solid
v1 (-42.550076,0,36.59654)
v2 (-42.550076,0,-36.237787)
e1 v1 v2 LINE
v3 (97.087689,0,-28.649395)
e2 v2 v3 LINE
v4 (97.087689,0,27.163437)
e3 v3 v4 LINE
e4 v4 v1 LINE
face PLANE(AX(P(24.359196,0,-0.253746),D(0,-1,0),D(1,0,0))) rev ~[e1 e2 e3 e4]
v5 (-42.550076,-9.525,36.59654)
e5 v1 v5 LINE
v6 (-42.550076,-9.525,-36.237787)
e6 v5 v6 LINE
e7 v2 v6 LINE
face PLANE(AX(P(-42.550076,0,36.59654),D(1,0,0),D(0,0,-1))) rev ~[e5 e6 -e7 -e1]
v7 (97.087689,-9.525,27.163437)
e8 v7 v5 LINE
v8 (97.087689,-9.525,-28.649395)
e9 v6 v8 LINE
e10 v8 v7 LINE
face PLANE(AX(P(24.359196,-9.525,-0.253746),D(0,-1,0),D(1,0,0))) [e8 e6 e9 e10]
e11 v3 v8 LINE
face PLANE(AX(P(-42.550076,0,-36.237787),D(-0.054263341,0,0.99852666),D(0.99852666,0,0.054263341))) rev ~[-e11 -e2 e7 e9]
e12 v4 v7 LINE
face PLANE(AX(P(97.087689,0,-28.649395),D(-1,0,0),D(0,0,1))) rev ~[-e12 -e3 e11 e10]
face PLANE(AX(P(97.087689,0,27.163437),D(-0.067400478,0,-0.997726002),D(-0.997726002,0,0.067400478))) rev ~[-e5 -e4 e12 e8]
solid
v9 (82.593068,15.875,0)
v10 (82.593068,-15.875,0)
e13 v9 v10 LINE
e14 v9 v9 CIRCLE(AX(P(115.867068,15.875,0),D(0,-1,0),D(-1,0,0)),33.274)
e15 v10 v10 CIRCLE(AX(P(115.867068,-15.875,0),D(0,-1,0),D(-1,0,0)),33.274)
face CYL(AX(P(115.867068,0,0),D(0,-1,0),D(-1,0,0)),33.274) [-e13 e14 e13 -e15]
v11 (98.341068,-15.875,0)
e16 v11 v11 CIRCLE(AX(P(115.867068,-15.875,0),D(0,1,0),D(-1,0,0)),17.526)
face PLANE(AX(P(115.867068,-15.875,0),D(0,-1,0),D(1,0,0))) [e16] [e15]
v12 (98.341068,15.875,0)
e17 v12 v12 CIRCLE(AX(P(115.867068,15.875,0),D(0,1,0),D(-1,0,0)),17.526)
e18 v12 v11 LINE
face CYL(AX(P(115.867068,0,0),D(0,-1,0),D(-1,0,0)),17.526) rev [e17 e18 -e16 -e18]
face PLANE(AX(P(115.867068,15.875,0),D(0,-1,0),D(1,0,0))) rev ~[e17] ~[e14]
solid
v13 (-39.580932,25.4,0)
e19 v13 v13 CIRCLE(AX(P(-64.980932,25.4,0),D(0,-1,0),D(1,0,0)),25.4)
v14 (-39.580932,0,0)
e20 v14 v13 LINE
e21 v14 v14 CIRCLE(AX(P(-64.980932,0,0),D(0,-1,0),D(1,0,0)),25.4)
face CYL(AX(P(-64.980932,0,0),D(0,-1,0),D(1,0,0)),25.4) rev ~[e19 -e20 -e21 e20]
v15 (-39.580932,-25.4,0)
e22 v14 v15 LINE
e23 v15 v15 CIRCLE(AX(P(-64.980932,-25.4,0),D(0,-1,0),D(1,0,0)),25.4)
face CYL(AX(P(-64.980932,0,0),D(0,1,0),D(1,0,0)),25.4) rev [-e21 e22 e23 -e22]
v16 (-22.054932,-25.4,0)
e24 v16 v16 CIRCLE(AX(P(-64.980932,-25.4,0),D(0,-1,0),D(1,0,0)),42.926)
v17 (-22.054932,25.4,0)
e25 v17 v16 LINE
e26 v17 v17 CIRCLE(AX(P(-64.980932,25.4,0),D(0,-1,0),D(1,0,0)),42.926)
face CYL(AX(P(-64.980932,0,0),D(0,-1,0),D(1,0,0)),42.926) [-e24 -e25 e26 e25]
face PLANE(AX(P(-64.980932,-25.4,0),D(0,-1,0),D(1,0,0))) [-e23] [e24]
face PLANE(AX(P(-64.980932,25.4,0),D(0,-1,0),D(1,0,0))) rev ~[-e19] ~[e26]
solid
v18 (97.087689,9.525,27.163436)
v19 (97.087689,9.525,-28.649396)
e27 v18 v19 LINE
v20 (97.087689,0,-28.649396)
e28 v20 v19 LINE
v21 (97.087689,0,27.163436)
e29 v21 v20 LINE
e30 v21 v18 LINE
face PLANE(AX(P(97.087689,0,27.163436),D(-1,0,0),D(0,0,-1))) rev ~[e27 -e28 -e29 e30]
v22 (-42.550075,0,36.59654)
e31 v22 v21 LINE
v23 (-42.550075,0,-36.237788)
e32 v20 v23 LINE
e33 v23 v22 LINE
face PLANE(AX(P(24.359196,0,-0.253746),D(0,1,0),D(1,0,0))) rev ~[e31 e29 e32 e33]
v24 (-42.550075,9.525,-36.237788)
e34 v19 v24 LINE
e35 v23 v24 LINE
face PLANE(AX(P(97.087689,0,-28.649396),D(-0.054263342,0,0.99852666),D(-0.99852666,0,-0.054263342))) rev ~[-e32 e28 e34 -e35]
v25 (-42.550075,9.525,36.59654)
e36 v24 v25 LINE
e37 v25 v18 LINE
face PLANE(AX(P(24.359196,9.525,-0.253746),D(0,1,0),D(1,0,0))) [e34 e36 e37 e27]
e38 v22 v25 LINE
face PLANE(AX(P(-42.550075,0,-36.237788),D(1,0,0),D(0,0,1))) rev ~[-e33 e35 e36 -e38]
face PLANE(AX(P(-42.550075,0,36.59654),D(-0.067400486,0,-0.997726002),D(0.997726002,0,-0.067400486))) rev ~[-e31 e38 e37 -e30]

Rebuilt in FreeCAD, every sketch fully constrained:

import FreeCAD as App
import Part
import Sketcher
from FreeCAD import Vector
Q = App.Units.Quantity

doc = App.newDocument("Part")
params = doc.addObject("Spreadsheet::Sheet", "Params")
for row, (alias, value) in enumerate([
    ("sketch1_diameter", "2.62 in"),
    ("sketch1_diameter2", "1.38 in"),
    ("pad1_length", "0.625 in"),
    ("sketch2_diameter", "2.62 in"),
    ("sketch2_diameter2", "1.38 in"),
    ("pad2_length", "0.625 in"),
    ("sketch3_diameter", "2 in"),
    ("sketch3_diameter2", "3.38 in"),
    ("pad3_length", "1 in"),
    ("sketch4_diameter", "2 in"),
    ("sketch4_diameter2", "3.38 in"),
    ("pad4_length", "1 in"),
    ("pad5_length", "0.375 in"),
    ("pad6_length", "0.375 in"),
], start=1):
    params.set(f"A{row}", alias)
    params.set(f"B{row}", "=" + value)
    params.setAlias(f"B{row}", alias)

body = doc.addObject("PartDesign::Body", "Body")

sketch1 = body.newObject("Sketcher::SketchObject", "Sketch")
sketch1.AttachmentSupport = (doc.getObject("XZ_Plane"), [""])
sketch1.MapMode = "FlatFace"
sketch1.addGeometry(Part.Circle(Vector(116, 0, 0), Vector(0, 0, 1), 33), False)
sketch1.addGeometry(Part.Circle(Vector(116, 0, 0), Vector(0, 0, 1), 18), False)
sketch1.addConstraint(Sketcher.Constraint("Coincident", 1, 3, 0, 3))
sketch1.addConstraint(Sketcher.Constraint("PointOnObject", 0, 3, -1))
sketch1.addConstraint(Sketcher.Constraint("Diameter", 0, Q("2.62 in")))
sketch1.addConstraint(Sketcher.Constraint("Diameter", 1, Q("1.38 in")))
sketch1.addConstraint(Sketcher.Constraint("DistanceX", -1, 1, 0, 3, 115.867068))
sketch1.setExpression("Constraints[2]", "Params.sketch1_diameter")
sketch1.setExpression("Constraints[3]", "Params.sketch1_diameter2")
pad1 = body.newObject("PartDesign::Pad", "Pad")
pad1.Profile = sketch1
pad1.setExpression("Length", "Params.pad1_length")

sketch2 = body.newObject("Sketcher::SketchObject", "Sketch001")
sketch2.AttachmentSupport = (doc.getObject("XZ_Plane"), [""])
sketch2.MapMode = "FlatFace"
sketch2.addGeometry(Part.Circle(Vector(116, 0, 0), Vector(0, 0, 1), 33), False)
sketch2.addGeometry(Part.Circle(Vector(116, 0, 0), Vector(0, 0, 1), 18), False)
sketch2.addConstraint(Sketcher.Constraint("Coincident", 1, 3, 0, 3))
sketch2.addConstraint(Sketcher.Constraint("PointOnObject", 0, 3, -1))
sketch2.addConstraint(Sketcher.Constraint("Diameter", 0, Q("2.62 in")))
sketch2.addConstraint(Sketcher.Constraint("Diameter", 1, Q("1.38 in")))
sketch2.addConstraint(Sketcher.Constraint("DistanceX", -1, 1, 0, 3, 115.867068))
sketch2.setExpression("Constraints[2]", "Params.sketch2_diameter")
sketch2.setExpression("Constraints[3]", "Params.sketch2_diameter2")
pad2 = body.newObject("PartDesign::Pad", "Pad001")
pad2.Profile = sketch2
pad2.setExpression("Length", "Params.pad2_length")
pad2.Reversed = True
body2 = doc.addObject("PartDesign::Body", "Body001")

sketch3 = body2.newObject("Sketcher::SketchObject", "Sketch002")
sketch3.AttachmentSupport = (doc.getObject("XZ_Plane001"), [""])
sketch3.MapMode = "FlatFace"
sketch3.addGeometry(Part.Circle(Vector(-65, 0, 0), Vector(0, 0, 1), 43), False)
sketch3.addGeometry(Part.Circle(Vector(-65, 0, 0), Vector(0, 0, 1), 25), False)
sketch3.addConstraint(Sketcher.Constraint("Coincident", 1, 3, 0, 3))
sketch3.addConstraint(Sketcher.Constraint("PointOnObject", 0, 3, -1))
sketch3.addConstraint(Sketcher.Constraint("Diameter", 1, Q("2 in")))
sketch3.addConstraint(Sketcher.Constraint("Diameter", 0, Q("3.38 in")))
sketch3.addConstraint(Sketcher.Constraint("DistanceX", 0, 3, -1, 1, 64.980932))
sketch3.setExpression("Constraints[2]", "Params.sketch3_diameter")
sketch3.setExpression("Constraints[3]", "Params.sketch3_diameter2")
pad3 = body2.newObject("PartDesign::Pad", "Pad002")
pad3.Profile = sketch3
pad3.setExpression("Length", "Params.pad3_length")

sketch4 = body2.newObject("Sketcher::SketchObject", "Sketch003")
sketch4.AttachmentSupport = (doc.getObject("XZ_Plane001"), [""])
sketch4.MapMode = "FlatFace"
sketch4.addGeometry(Part.Circle(Vector(-65, 0, 0), Vector(0, 0, 1), 43), False)
sketch4.addGeometry(Part.Circle(Vector(-65, 0, 0), Vector(0, 0, 1), 25), False)
sketch4.addConstraint(Sketcher.Constraint("Coincident", 1, 3, 0, 3))
sketch4.addConstraint(Sketcher.Constraint("PointOnObject", 0, 3, -1))
sketch4.addConstraint(Sketcher.Constraint("Diameter", 1, Q("2 in")))
sketch4.addConstraint(Sketcher.Constraint("Diameter", 0, Q("3.38 in")))
sketch4.addConstraint(Sketcher.Constraint("DistanceX", 0, 3, -1, 1, 64.980932))
sketch4.setExpression("Constraints[2]", "Params.sketch4_diameter")
sketch4.setExpression("Constraints[3]", "Params.sketch4_diameter2")
pad4 = body2.newObject("PartDesign::Pad", "Pad003")
pad4.Profile = sketch4
pad4.setExpression("Length", "Params.pad4_length")
pad4.Reversed = True
body3 = doc.addObject("PartDesign::Body", "Body002")

sketch5 = body3.newObject("Sketcher::SketchObject", "Sketch004")
sketch5.AttachmentSupport = (doc.getObject("XZ_Plane002"), [""])
sketch5.MapMode = "FlatFace"
sketch5.addGeometry(Part.LineSegment(Vector(97, 27, 0), Vector(-43, 37, 0)), False)
sketch5.addGeometry(Part.LineSegment(Vector(-43, 37, 0), Vector(-43, -36, 0)), False)
sketch5.addGeometry(Part.LineSegment(Vector(-43, -36, 0), Vector(97, -29, 0)), False)
sketch5.addGeometry(Part.LineSegment(Vector(97, -29, 0), Vector(97, 27, 0)), False)
sketch5.addConstraint(Sketcher.Constraint("Coincident", 0, 2, 1, 1))
sketch5.addConstraint(Sketcher.Constraint("Coincident", 1, 2, 2, 1))
sketch5.addConstraint(Sketcher.Constraint("Coincident", 2, 2, 3, 1))
sketch5.addConstraint(Sketcher.Constraint("Coincident", 3, 2, 0, 1))
sketch5.addConstraint(Sketcher.Constraint("Vertical", 1))
sketch5.addConstraint(Sketcher.Constraint("Vertical", 3))
sketch5.addConstraint(Sketcher.Constraint("DistanceX", 0, 2, -1, 1, Q("1.6751998 in")))
sketch5.addConstraint(Sketcher.Constraint("DistanceY", 1, 2, 1, 1, 72.834327))
sketch5.addConstraint(Sketcher.Constraint("DistanceY", 3, 1, 3, 2, 55.812832))
sketch5.addConstraint(Sketcher.Constraint("DistanceY", -1, 1, 0, 2, 36.59654))
sketch5.addConstraint(Sketcher.Constraint("DistanceX", -1, 1, 2, 2, 97.087689))
sketch5.addConstraint(Sketcher.Constraint("DistanceY", 1, 2, 2, 2, 7.588392))
pad5 = body3.newObject("PartDesign::Pad", "Pad004")
pad5.Profile = sketch5
pad5.setExpression("Length", "Params.pad5_length")
body4 = doc.addObject("PartDesign::Body", "Body003")

sketch6 = body4.newObject("Sketcher::SketchObject", "Sketch005")
sketch6.AttachmentSupport = (doc.getObject("XZ_Plane003"), [""])
sketch6.MapMode = "FlatFace"
sketch6.addGeometry(Part.LineSegment(Vector(-43, -36, 0), Vector(-43, 37, 0)), False)
sketch6.addGeometry(Part.LineSegment(Vector(-43, 37, 0), Vector(97, 27, 0)), False)
sketch6.addGeometry(Part.LineSegment(Vector(97, 27, 0), Vector(97, -29, 0)), False)
sketch6.addGeometry(Part.LineSegment(Vector(97, -29, 0), Vector(-43, -36, 0)), False)
sketch6.addConstraint(Sketcher.Constraint("Coincident", 0, 2, 1, 1))
sketch6.addConstraint(Sketcher.Constraint("Coincident", 1, 2, 2, 1))
sketch6.addConstraint(Sketcher.Constraint("Coincident", 2, 2, 3, 1))
sketch6.addConstraint(Sketcher.Constraint("Coincident", 3, 2, 0, 1))
sketch6.addConstraint(Sketcher.Constraint("Vertical", 0))
sketch6.addConstraint(Sketcher.Constraint("Vertical", 2))
sketch6.addConstraint(Sketcher.Constraint("DistanceX", 0, 2, -1, 1, Q("1.6751998 in")))
sketch6.addConstraint(Sketcher.Constraint("Distance", 3, 139.843802))
sketch6.addConstraint(Sketcher.Constraint("DistanceY", 0, 1, 0, 2, 72.834328))
sketch6.addConstraint(Sketcher.Constraint("DistanceY", 2, 2, 2, 1, 55.812832))
sketch6.addConstraint(Sketcher.Constraint("DistanceY", -1, 1, 0, 2, 36.59654))
sketch6.addConstraint(Sketcher.Constraint("DistanceX", -1, 1, 1, 2, 97.087689))
pad6 = body4.newObject("PartDesign::Pad", "Pad005")
pad6.Profile = sketch6
pad6.setExpression("Length", "Params.pad6_length")
pad6.Reversed = True

doc.recompute()
